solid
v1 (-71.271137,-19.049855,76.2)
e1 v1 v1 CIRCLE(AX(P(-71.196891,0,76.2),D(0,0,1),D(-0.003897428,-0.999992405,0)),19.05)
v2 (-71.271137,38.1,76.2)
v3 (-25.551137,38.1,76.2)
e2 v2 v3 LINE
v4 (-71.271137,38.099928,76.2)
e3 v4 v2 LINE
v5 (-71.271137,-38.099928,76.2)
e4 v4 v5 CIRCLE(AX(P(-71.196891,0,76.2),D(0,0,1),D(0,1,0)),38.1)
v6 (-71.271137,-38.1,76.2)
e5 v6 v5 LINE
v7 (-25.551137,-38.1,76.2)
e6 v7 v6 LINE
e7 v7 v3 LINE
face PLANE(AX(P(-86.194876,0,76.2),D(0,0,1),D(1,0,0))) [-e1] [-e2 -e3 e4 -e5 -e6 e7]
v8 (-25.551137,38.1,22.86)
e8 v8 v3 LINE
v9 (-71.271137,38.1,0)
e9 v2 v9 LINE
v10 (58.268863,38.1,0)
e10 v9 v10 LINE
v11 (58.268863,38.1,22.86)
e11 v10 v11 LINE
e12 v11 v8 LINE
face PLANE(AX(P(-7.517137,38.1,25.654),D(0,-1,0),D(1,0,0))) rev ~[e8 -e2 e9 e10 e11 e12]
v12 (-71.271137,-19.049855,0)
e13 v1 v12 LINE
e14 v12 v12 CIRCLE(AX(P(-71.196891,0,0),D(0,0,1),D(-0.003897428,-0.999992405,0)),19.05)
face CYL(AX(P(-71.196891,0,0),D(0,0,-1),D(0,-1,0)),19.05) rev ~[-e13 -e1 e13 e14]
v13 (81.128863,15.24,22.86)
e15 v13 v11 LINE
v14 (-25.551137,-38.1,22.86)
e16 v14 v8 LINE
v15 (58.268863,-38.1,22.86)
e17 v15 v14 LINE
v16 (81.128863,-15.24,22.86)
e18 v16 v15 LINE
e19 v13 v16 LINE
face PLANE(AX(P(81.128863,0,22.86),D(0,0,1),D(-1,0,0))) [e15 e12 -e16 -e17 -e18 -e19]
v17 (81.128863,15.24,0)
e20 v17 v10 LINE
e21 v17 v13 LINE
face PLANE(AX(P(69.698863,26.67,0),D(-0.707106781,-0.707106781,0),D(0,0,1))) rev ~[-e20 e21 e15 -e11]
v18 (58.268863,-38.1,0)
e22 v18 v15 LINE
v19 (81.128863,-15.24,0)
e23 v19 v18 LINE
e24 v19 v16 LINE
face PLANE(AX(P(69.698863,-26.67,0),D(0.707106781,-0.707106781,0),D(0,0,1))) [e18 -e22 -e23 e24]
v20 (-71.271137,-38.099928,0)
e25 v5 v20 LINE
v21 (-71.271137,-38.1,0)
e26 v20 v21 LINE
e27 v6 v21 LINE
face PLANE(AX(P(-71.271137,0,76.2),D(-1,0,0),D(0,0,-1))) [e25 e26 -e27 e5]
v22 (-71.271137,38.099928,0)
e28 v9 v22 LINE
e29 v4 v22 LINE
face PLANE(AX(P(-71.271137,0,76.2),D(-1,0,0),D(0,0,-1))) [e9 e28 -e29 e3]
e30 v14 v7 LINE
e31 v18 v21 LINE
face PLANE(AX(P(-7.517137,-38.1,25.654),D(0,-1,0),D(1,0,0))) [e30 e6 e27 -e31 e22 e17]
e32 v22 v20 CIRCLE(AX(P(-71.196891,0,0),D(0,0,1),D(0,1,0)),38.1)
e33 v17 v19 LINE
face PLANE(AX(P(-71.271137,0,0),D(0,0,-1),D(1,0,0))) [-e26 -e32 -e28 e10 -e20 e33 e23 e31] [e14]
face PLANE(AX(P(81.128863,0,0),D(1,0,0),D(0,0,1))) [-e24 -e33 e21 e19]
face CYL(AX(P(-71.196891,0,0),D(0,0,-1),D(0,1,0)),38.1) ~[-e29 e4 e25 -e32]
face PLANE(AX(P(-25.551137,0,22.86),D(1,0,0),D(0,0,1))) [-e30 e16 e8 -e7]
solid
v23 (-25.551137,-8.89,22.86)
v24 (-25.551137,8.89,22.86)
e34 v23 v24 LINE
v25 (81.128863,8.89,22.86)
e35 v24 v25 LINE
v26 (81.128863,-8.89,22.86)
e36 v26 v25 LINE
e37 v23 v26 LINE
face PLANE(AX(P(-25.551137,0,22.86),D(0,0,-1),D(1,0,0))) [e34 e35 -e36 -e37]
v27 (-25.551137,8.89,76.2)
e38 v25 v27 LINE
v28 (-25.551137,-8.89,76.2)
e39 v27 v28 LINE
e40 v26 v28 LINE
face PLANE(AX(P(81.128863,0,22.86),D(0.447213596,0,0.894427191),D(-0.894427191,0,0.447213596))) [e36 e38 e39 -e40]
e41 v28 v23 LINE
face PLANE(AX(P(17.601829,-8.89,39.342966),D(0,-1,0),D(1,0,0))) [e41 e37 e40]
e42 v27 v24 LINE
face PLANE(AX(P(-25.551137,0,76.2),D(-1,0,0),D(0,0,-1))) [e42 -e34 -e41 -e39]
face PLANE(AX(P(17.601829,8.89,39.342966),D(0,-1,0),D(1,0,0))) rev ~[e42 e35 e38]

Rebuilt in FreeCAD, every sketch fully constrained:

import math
import FreeCAD as App
import Part
import Sketcher
from FreeCAD import Vector
Q = App.Units.Quantity


def edges_at(feature, points):
    """Names of the edges that pass closest to the given points."""
    edges = feature.Shape.Edges
    near = lambda p: min(range(len(edges)), key=lambda i: edges[i].distToShape(Part.Vertex(*p))[0])
    return sorted({f"Edge{near(p) + 1}" for p in points})


def add_polygon(sketch, points):
    """Adds a closed chain of lines whose ends are joined by coincident constraints."""
    first, n = sketch.GeometryCount, len(points)
    for a, b in zip(points, points[1:] + points[:1]):
        sketch.addGeometry(Part.LineSegment(App.Vector(*a, 0), App.Vector(*b, 0)), False)
    for i in range(n):
        sketch.addConstraint(Sketcher.Constraint("Coincident", first + i, 2, first + (i + 1) % n, 1))

doc = App.newDocument("Part")
body = doc.addObject("PartDesign::Body", "Body")

sketch1 = doc.addObject("Sketcher::SketchObject", "Sketch")
body.addObject(sketch1)
sketch1.AttachmentSupport = (doc.XZ_Plane, [""])
sketch1.MapMode = "FlatFace"
add_polygon(sketch1, [(-71, 76), (-71, 0), (81, 0), (81, 23), (-26, 23), (-26, 76)])
sketch1.addConstraint([
    Sketcher.Constraint("Vertical", 0),
    Sketcher.Constraint("Horizontal", 1),
    Sketcher.Constraint("Vertical", 2),
    Sketcher.Constraint("Horizontal", 3),
    Sketcher.Constraint("Vertical", 4),
    Sketcher.Constraint("Horizontal", 5),
    Sketcher.Constraint("PointOnObject", 0, 2, -1),
    Sketcher.Constraint("DistanceX", 1, 1, 1, 2, Q("6 in")),
    Sketcher.Constraint("DistanceY", 0, 2, 0, 1, Q("3 in")),
    Sketcher.Constraint("DistanceX", 3, 2, 3, 1, Q("4.2 in")),
    Sketcher.Constraint("DistanceY", 2, 1, 2, 2, Q("0.9 in")),
    Sketcher.Constraint("DistanceX", 0, 2, -1, 1, 71.271137),
])
pad1 = doc.addObject("PartDesign::Pad", "Pad")
body.addObject(pad1)
pad1.Profile = sketch1
pad1.Length = Q("3 in")
pad1.Midplane = True
doc.recompute()

chamfer = doc.addObject("PartDesign::Chamfer", "Chamfer")
body.addObject(chamfer)
chamfer.Base = (pad1, edges_at(pad1, [(81.129, -38.1, 11.43), (81.129, 38.1, 11.43)]))
chamfer.Size = Q("0.9 in")

sketch2 = doc.addObject("Sketcher::SketchObject", "Sketch001")
body.addObject(sketch2)
sketch2.AttachmentSupport = (doc.XY_Plane, [""])
sketch2.MapMode = "FlatFace"
sketch2.addGeometry([
    Part.ArcOfCircle(Part.Circle(Vector(-71, 0, 0), Vector(0, 0, 1), 19), math.radians(90), math.radians(270)),
    Part.LineSegment(Vector(-71, 19, 0), Vector(-71, 38, 0)),
    Part.ArcOfCircle(Part.Circle(Vector(-71, 0, 0), Vector(0, 0, 1), 38), math.radians(90), math.radians(270)),
    Part.LineSegment(Vector(-71, -38, 0), Vector(-71, -19, 0)),
], False)
sketch2.addConstraint([
    Sketcher.Constraint("Coincident", 0, 1, 1, 1),
    Sketcher.Constraint("Coincident", 1, 2, 2, 1),
    Sketcher.Constraint("Coincident", 2, 2, 3, 1),
    Sketcher.Constraint("Coincident", 3, 2, 0, 2),
    Sketcher.Constraint("Vertical", 1),
    Sketcher.Constraint("Vertical", 3),
    Sketcher.Constraint("Coincident", 2, 3, 0, 3),
    Sketcher.Constraint("Symmetric", 1, 2, 2, 2, -1),
    Sketcher.Constraint("Vertical", 2, 3, 0, 1),
    Sketcher.Constraint("Radius", 2, Q("1.5 in")),
    Sketcher.Constraint("Radius", 0, Q("0.75 in")),
    Sketcher.Constraint("DistanceX", 0, 3, -1, 1, 71.196891),
])
pad2 = doc.addObject("PartDesign::Pad", "Pad001")
body.addObject(pad2)
pad2.Profile = sketch2
pad2.Length = Q("3 in")

sketch3 = doc.addObject("Sketcher::SketchObject", "Sketch002")
body.addObject(sketch3)
sketch3.AttachmentSupport = (doc.XY_Plane, [""])
sketch3.MapMode = "FlatFace"
sketch3.addGeometry(Part.Circle(Vector(-71, 0, 0), Vector(0, 0, 1), 19), False)
sketch3.addConstraint([
    Sketcher.Constraint("PointOnObject", 0, 3, -1),
    Sketcher.Constraint("Diameter", 0, Q("1.5 in")),
    Sketcher.Constraint("DistanceX", 0, 3, -1, 1, 71.196891),
])
doc.recompute()
hole = doc.addObject("PartDesign::Hole", "Hole")
body.addObject(hole)
hole.Profile = sketch3
hole.ThreadType = "None"
hole.Diameter = Q("1.5 in")
hole.DepthType = "ThroughAll"
hole.Reversed = True
body2 = doc.addObject("PartDesign::Body", "Body001")

sketch4 = doc.addObject("Sketcher::SketchObject", "Sketch003")
body2.addObject(sketch4)
sketch4.AttachmentSupport = (doc.getObject("XZ_Plane001"), [""])
sketch4.MapMode = "FlatFace"
add_polygon(sketch4, [(81, 23), (-26, 76), (-26, 23)])
sketch4.addConstraint([
    Sketcher.Constraint("Vertical", 1),
    Sketcher.Constraint("Horizontal", 2),
    Sketcher.Constraint("DistanceX", 2, 1, 2, 2, Q("4.2 in")),
    Sketcher.Constraint("DistanceY", 1, 2, 1, 1, Q("2.1 in")),
    Sketcher.Constraint("DistanceY", -1, 1, 0, 2, Q("3 in")),
    Sketcher.Constraint("DistanceX", 0, 2, -1, 1, 25.551137),
])
pad3 = doc.addObject("PartDesign::Pad", "Pad002")
body2.addObject(pad3)
pad3.Profile = sketch4
pad3.Length = Q("0.7 in")
pad3.Midplane = True

doc.recompute()
